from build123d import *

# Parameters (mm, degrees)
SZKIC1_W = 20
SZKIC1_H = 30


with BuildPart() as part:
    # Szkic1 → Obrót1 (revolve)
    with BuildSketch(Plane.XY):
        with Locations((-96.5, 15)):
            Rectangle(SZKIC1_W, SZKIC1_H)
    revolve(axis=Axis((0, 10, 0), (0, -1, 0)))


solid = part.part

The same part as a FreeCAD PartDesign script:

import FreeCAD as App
import Part
import Sketcher
Q = App.Units.Quantity

doc = App.newDocument("Part")
body = doc.addObject("PartDesign::Body", "Body")

sketch1 = body.newObject("Sketcher::SketchObject", "Sketch")
sketch1.AttachmentSupport = (doc.getObject("XY_Plane"), [""])
sketch1.MapMode = "FlatFace"
sketch1.addGeometry(Part.LineSegment(App.Vector(-106, 30, 0), App.Vector(-106, 0, 0)), False)
sketch1.addGeometry(Part.LineSegment(App.Vector(-106, 0, 0), App.Vector(-86, 0, 0)), False)
sketch1.addGeometry(Part.LineSegment(App.Vector(-86, 0, 0), App.Vector(-86, 30, 0)), False)
sketch1.addGeometry(Part.LineSegment(App.Vector(-86, 30, 0), App.Vector(-106, 30, 0)), False)
sketch1.addConstraint(Sketcher.Constraint("Coincident", 0, 2, 1, 1))
sketch1.addConstraint(Sketcher.Constraint("Coincident", 1, 2, 2, 1))
sketch1.addConstraint(Sketcher.Constraint("Coincident", 2, 2, 3, 1))
sketch1.addConstraint(Sketcher.Constraint("Coincident", 3, 2, 0, 1))
sketch1.addConstraint(Sketcher.Constraint("Vertical", 0))
sketch1.addConstraint(Sketcher.Constraint("Horizontal", 1))
sketch1.addConstraint(Sketcher.Constraint("Vertical", 2))
sketch1.addConstraint(Sketcher.Constraint("Horizontal", 3))
sketch1.addConstraint(Sketcher.Constraint("PointOnObject", 0, 2, -1))
sketch1.addConstraint(Sketcher.Constraint("DistanceX", 1, 1, 1, 2, Q("20 mm")))
sketch1.addConstraint(Sketcher.Constraint("DistanceY", 0, 2, 0, 1, Q("30 mm")))
sketch1.addConstraint(Sketcher.Constraint("DistanceX", 0, 2, -1, 1, Q("106.5 mm")))
revolution = body.newObject("PartDesign::Revolution", "Revolution")
revolution.Profile = sketch1
revolution.ReferenceAxis = (sketch1, ["V_Axis"])
revolution.Angle = 360

doc.recompute()
